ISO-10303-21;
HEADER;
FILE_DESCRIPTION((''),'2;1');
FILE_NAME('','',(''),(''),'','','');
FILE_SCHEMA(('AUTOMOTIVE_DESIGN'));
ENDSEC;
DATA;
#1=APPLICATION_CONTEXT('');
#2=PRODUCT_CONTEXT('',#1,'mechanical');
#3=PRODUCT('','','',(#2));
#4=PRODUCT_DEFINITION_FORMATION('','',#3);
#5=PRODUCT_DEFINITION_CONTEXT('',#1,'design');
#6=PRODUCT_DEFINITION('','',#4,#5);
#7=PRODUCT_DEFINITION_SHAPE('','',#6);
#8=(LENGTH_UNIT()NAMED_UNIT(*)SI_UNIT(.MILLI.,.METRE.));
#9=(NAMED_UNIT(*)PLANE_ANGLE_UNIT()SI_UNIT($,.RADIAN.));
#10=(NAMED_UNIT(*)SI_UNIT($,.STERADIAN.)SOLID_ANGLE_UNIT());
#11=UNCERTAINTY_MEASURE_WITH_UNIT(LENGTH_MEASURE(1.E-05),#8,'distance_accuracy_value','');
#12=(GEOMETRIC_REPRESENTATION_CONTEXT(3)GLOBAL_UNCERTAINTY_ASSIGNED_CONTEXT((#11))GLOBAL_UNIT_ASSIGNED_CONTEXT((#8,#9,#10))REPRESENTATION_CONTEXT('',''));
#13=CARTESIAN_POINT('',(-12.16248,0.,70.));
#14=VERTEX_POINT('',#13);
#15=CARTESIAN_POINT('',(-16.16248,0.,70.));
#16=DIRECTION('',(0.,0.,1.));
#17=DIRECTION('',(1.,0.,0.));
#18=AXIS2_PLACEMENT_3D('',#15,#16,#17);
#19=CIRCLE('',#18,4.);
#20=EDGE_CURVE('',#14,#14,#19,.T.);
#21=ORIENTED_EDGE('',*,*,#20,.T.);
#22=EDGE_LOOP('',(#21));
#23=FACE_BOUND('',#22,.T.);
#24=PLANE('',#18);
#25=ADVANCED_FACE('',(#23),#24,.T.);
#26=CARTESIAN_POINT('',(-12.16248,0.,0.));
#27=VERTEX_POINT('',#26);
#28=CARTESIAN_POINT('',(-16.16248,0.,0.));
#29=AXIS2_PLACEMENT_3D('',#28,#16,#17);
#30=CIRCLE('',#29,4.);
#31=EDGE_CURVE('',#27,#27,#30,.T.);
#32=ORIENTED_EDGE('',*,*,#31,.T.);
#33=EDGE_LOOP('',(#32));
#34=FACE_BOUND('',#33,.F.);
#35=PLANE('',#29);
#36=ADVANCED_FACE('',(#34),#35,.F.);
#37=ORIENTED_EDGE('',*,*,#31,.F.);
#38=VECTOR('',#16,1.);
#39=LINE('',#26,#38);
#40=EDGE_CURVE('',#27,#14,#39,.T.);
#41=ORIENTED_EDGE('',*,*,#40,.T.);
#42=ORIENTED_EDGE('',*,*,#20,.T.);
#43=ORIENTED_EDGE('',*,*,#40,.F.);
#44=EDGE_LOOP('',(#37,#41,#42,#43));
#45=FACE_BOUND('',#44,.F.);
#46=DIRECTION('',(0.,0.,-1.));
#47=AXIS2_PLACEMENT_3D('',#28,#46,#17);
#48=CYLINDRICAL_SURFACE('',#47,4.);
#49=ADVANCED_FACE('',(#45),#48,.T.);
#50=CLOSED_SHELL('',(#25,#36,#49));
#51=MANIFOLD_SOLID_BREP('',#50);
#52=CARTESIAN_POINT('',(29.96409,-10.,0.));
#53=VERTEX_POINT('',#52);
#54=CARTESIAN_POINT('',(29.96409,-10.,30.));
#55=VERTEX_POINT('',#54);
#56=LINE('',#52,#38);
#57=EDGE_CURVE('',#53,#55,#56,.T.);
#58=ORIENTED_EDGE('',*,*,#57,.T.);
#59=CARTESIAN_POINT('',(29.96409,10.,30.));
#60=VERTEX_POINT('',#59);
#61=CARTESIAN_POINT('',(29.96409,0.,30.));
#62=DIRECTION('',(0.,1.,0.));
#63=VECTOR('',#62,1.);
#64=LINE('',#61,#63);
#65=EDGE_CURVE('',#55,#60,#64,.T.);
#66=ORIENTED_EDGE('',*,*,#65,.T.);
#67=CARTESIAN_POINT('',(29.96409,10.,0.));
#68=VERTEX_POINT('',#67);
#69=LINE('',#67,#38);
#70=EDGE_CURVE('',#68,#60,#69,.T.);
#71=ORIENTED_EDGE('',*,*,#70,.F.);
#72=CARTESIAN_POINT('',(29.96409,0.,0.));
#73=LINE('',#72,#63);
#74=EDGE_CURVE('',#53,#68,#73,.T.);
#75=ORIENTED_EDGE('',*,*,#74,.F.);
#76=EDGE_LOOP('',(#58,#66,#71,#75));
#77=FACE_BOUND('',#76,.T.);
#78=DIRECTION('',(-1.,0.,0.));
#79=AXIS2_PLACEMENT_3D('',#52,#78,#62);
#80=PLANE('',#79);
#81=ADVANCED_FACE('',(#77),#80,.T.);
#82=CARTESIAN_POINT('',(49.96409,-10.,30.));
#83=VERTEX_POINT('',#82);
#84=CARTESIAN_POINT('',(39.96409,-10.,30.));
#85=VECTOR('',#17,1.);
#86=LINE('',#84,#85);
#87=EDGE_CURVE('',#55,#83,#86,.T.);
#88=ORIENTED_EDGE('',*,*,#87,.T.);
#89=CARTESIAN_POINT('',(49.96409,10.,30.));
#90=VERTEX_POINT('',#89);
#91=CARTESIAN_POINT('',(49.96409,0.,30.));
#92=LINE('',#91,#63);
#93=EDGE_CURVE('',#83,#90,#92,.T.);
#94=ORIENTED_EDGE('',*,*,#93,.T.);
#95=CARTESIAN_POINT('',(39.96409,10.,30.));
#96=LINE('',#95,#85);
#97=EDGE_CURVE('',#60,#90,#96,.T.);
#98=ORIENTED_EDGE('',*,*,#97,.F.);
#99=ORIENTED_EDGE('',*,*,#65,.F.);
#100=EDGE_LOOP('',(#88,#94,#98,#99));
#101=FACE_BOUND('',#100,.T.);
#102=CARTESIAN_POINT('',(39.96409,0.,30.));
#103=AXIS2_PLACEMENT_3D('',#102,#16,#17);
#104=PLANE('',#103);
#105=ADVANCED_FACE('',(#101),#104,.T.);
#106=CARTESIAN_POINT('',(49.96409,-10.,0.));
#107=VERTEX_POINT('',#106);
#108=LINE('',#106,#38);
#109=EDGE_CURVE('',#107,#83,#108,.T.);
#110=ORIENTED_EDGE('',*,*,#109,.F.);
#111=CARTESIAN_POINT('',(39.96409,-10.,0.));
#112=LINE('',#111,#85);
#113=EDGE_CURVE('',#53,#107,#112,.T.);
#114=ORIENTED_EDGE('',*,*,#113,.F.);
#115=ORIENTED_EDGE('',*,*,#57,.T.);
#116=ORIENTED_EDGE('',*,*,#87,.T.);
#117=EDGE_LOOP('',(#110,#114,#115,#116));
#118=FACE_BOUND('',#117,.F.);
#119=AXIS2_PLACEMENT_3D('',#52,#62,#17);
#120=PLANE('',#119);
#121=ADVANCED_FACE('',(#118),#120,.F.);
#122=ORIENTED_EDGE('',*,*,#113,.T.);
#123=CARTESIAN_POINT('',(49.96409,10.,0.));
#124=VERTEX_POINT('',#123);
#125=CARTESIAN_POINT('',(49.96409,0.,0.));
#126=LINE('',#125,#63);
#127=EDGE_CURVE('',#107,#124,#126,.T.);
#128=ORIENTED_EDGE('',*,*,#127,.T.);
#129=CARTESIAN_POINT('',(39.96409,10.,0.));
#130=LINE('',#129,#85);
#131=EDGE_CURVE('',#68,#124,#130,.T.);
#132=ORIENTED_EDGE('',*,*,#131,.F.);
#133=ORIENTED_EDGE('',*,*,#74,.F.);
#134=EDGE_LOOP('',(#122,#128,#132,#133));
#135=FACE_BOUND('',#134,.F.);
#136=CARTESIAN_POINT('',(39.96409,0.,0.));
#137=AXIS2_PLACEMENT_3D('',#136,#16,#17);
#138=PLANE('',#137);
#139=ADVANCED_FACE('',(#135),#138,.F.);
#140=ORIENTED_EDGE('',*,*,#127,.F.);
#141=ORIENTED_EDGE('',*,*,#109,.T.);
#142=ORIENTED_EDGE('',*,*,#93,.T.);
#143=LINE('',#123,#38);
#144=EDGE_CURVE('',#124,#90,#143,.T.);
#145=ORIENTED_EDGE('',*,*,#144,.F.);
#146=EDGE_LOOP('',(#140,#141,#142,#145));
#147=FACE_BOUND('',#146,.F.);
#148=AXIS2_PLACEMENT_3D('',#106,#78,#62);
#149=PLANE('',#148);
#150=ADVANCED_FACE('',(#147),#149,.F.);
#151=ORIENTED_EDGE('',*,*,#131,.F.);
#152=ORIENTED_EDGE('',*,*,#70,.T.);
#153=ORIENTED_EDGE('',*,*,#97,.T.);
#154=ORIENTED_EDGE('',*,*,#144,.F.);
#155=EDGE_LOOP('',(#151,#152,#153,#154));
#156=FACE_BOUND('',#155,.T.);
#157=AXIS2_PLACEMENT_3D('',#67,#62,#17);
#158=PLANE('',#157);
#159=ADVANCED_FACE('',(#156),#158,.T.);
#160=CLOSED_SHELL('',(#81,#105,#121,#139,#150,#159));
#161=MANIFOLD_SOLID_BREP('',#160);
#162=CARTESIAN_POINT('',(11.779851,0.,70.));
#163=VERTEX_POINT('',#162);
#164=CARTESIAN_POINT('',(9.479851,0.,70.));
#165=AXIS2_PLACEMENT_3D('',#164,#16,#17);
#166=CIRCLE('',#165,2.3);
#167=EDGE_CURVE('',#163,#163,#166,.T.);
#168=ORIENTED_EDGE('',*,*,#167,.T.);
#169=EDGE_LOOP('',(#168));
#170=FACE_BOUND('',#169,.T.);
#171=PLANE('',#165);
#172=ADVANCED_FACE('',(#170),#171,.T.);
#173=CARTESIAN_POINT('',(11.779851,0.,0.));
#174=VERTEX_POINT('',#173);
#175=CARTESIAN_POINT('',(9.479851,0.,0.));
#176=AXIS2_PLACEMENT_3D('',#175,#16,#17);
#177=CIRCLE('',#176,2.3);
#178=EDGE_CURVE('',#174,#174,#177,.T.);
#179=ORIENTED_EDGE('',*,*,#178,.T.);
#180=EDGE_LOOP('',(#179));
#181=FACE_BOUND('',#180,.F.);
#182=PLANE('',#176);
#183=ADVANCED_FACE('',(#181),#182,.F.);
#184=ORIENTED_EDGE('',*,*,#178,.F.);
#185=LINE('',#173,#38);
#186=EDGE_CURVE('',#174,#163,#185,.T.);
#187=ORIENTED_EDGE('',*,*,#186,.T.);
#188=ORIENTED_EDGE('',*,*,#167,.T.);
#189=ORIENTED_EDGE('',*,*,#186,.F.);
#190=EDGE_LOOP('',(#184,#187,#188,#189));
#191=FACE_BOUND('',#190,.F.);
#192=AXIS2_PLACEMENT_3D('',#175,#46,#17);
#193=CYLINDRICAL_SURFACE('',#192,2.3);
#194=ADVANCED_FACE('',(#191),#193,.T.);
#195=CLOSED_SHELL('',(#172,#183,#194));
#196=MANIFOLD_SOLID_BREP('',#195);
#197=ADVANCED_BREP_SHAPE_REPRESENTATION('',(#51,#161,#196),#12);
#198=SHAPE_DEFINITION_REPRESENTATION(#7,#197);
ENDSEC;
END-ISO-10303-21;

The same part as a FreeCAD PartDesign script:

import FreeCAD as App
import Part
import Sketcher

V = App.Vector

doc = App.newDocument("Part")
body = doc.addObject("PartDesign::Body", "Body")

sketch1 = body.newObject("Sketcher::SketchObject", "Sketch")
sketch1.AttachmentSupport = (doc.getObject("XY_Plane"), [""])
sketch1.MapMode = "FlatFace"
sketch1.addGeometry(Part.Circle(V(-16.2, 0, 0), V(0, 0, 1), 4), False)
sketch1.addConstraint([
    Sketcher.Constraint("PointOnObject", 0, 3, -1),
    Sketcher.Constraint("Diameter", 0, 8.0),
    Sketcher.Constraint("DistanceX", 0, 3, -1, 1, 16.16248),
])
pad1 = body.newObject("PartDesign::Pad", "Pad")
pad1.Profile = sketch1
pad1.Length = 70
body2 = doc.addObject("PartDesign::Body", "Body001")

sketch2 = body2.newObject("Sketcher::SketchObject", "Sketch001")
sketch2.AttachmentSupport = (doc.getObject("XY_Plane001"), [""])
sketch2.MapMode = "FlatFace"
sketch2.addGeometry(Part.Circle(V(9.5, 0, 0), V(0, 0, 1), 2.3), False)
sketch2.addConstraint([
    Sketcher.Constraint("PointOnObject", 0, 3, -1),
    Sketcher.Constraint("Diameter", 0, 4.6),
    Sketcher.Constraint("DistanceX", -1, 1, 0, 3, 9.479851),
])
pad2 = body2.newObject("PartDesign::Pad", "Pad001")
pad2.Profile = sketch2
pad2.Length = 70
body3 = doc.addObject("PartDesign::Body", "Body002")

sketch3 = body3.newObject("Sketcher::SketchObject", "Sketch002")
sketch3.AttachmentSupport = (doc.getObject("XY_Plane002"), [""])
sketch3.MapMode = "FlatFace"
sketch3.addGeometry([
    Part.LineSegment(V(30, 10, 0), V(30, -10, 0)),
    Part.LineSegment(V(30, -10, 0), V(50, -10, 0)),
    Part.LineSegment(V(50, -10, 0), V(50, 10, 0)),
    Part.LineSegment(V(50, 10, 0), V(30, 10, 0)),
], False)
sketch3.addConstraint([
    Sketcher.Constraint("Coincident", 0, 2, 1, 1),
    Sketcher.Constraint("Coincident", 1, 2, 2, 1),
    Sketcher.Constraint("Coincident", 2, 2, 3, 1),
    Sketcher.Constraint("Coincident", 3, 2, 0, 1),
    Sketcher.Constraint("Vertical", 0),
    Sketcher.Constraint("Horizontal", 1),
    Sketcher.Constraint("Vertical", 2),
    Sketcher.Constraint("Horizontal", 3),
    Sketcher.Constraint("Equal", 3, 0),
    Sketcher.Constraint("DistanceX", 1, 1, 1, 2, 20.0),
    Sketcher.Constraint("DistanceY", 0, 2, -1, 1, 10.0),
    Sketcher.Constraint("DistanceX", -1, 1, 0, 2, 29.96409),
])
pad3 = body3.newObject("PartDesign::Pad", "Pad002")
pad3.Profile = sketch3
pad3.Length = 30

doc.recompute()
